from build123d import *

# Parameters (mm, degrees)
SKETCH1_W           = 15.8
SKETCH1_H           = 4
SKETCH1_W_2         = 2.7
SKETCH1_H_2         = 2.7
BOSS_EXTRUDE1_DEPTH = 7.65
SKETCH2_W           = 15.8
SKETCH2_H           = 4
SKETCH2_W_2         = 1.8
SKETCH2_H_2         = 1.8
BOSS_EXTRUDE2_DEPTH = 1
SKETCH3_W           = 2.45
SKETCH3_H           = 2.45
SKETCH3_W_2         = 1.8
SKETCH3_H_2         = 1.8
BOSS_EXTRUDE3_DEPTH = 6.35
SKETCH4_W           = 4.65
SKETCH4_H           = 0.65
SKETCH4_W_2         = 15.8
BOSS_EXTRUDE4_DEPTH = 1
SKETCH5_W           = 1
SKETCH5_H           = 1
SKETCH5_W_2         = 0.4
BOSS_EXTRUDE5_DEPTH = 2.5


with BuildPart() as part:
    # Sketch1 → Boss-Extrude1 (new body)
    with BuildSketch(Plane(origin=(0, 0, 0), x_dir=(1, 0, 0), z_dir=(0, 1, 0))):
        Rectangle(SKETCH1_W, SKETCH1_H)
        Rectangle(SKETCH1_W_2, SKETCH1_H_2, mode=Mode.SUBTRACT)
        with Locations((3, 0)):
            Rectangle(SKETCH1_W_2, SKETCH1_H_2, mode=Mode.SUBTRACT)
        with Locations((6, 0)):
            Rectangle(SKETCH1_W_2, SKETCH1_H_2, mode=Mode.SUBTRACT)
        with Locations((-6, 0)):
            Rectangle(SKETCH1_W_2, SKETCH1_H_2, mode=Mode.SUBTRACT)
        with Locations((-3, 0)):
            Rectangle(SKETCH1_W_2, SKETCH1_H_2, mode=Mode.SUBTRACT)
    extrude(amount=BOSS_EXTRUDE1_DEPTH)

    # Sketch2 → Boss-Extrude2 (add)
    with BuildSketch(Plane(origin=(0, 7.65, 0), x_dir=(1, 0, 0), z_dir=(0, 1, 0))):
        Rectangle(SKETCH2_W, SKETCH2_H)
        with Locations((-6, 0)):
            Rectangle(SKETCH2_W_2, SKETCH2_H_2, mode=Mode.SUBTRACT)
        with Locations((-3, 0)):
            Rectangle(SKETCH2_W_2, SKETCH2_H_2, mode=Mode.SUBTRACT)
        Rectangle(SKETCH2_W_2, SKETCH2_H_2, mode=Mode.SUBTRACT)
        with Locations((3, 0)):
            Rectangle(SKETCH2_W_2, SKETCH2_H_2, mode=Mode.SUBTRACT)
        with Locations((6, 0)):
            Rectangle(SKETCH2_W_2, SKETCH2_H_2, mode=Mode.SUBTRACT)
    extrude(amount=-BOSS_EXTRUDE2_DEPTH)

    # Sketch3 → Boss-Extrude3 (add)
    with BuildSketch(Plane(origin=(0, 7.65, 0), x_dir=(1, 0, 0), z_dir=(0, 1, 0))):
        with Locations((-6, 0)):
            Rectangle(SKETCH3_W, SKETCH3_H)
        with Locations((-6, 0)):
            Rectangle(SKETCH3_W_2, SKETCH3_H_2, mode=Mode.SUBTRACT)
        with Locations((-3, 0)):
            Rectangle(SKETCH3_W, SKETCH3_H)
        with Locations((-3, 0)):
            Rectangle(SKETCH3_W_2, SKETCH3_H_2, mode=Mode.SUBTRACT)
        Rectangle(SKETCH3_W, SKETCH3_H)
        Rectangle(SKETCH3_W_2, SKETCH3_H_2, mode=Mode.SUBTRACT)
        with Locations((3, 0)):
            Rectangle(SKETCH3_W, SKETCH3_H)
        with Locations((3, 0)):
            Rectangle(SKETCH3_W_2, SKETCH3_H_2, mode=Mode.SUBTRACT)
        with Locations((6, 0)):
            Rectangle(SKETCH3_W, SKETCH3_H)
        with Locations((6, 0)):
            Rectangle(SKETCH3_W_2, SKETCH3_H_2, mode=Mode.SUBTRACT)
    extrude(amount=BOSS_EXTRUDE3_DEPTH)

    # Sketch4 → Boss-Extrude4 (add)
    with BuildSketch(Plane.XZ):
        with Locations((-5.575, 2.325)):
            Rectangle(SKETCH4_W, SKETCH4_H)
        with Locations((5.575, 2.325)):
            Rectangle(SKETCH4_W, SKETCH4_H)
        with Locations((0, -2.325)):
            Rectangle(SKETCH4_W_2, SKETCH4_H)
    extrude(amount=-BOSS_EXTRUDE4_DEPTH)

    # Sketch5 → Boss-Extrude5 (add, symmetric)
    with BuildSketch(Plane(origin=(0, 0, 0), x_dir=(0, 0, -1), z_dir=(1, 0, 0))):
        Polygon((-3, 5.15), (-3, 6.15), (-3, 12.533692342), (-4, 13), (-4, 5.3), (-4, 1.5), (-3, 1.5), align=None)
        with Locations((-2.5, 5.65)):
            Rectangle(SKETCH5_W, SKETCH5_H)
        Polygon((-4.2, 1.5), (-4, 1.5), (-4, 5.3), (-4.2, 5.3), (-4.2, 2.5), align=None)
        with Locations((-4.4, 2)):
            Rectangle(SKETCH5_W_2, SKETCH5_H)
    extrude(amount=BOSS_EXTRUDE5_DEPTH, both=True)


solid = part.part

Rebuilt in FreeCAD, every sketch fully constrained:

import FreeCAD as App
import Part
import Sketcher

V = App.Vector
Q = App.Units.Quantity


def add_polygon(sketch, points):
    """Adds a closed chain of lines whose ends are joined by coincident constraints."""
    first, n = sketch.GeometryCount, len(points)
    for a, b in zip(points, points[1:] + points[:1]):
        sketch.addGeometry(Part.LineSegment(App.Vector(*a, 0), App.Vector(*b, 0)), False)
    for i in range(n):
        sketch.addConstraint(Sketcher.Constraint("Coincident", first + i, 2, first + (i + 1) % n, 1))

doc = App.newDocument("Part")
params = doc.addObject("Spreadsheet::Sheet", "Params")
for row, (alias, value) in enumerate([
    ("sketch1_height", "4 mm"),
    ("sketch1_width", "15.8 mm"),
    ("sketch1_width2", "2.7 mm"),
    ("pad1_length", "7.65 mm"),
    ("sketch2_height", "4 mm"),
    ("sketch2_width", "15.8 mm"),
    ("sketch2_width2", "1.8 mm"),
    ("pad2_length", "1 mm"),
    ("sketch3_width", "1.8 mm"),
    ("sketch3_width2", "2.45 mm"),
    ("pad3_length", "6.35 mm"),
    ("sketch4_width", "15.8 mm"),
    ("sketch4_width2", "4.65 mm"),
    ("sketch4_height", "0.65 mm"),
    ("pad4_length", "1 mm"),
    ("sketch5_width", "1 mm"),
    ("sketch5_width2", "7.7 mm"),
    ("sketch5_width3", "2.8 mm"),
    ("sketch5_height", "0.2 mm"),
    ("sketch5_height2", "0.4 mm"),
    ("pad5_length", "5 mm"),
], start=1):
    params.set(f"A{row}", alias)
    params.set(f"B{row}", "=" + value)
    params.setAlias(f"B{row}", alias)

body = doc.addObject("PartDesign::Body", "Body")

# Sketch on XZ plane
sketch1 = body.newObject("Sketcher::SketchObject", "Sketch")
sketch1.AttachmentSupport = (doc.getObject("XZ_Plane"), [""])
sketch1.MapMode = "FlatFace"
add_polygon(sketch1, [(-7.9, -2), (-7.9, 2), (7.9, 2), (7.9, -2)])  # lines 0-3
add_polygon(sketch1, [(-4.7, 1.4), (-7.3, 1.4), (-7.3, -1.4), (-4.7, -1.4)])  # lines 4-7
add_polygon(sketch1, [(-1.6, 1.4), (-4.3, 1.4), (-4.3, -1.4), (-1.6, -1.4)])  # lines 8-11
add_polygon(sketch1, [(1.4, 1.4), (-1.4, 1.4), (-1.4, -1.4), (1.4, -1.4)])  # lines 12-15
add_polygon(sketch1, [(4.3, 1.4), (1.6, 1.4), (1.6, -1.4), (4.3, -1.4)])  # lines 16-19
add_polygon(sketch1, [(7.3, 1.4), (4.7, 1.4), (4.7, -1.4), (7.3, -1.4)])  # lines 20-23
sketch1.addConstraint(Sketcher.Constraint("Vertical", 0))
sketch1.addConstraint(Sketcher.Constraint("Horizontal", 1))
sketch1.addConstraint(Sketcher.Constraint("Vertical", 2))
sketch1.addConstraint(Sketcher.Constraint("Horizontal", 3))
sketch1.addConstraint(Sketcher.Constraint("Horizontal", 4))
sketch1.addConstraint(Sketcher.Constraint("Vertical", 5))
sketch1.addConstraint(Sketcher.Constraint("Horizontal", 6))
sketch1.addConstraint(Sketcher.Constraint("Vertical", 7))
sketch1.addConstraint(Sketcher.Constraint("Horizontal", 8))
sketch1.addConstraint(Sketcher.Constraint("Vertical", 9))
sketch1.addConstraint(Sketcher.Constraint("Horizontal", 10))
sketch1.addConstraint(Sketcher.Constraint("Vertical", 11))
sketch1.addConstraint(Sketcher.Constraint("Horizontal", 12))
sketch1.addConstraint(Sketcher.Constraint("Vertical", 13))
sketch1.addConstraint(Sketcher.Constraint("Horizontal", 14))
sketch1.addConstraint(Sketcher.Constraint("Vertical", 15))
sketch1.addConstraint(Sketcher.Constraint("Horizontal", 16))
sketch1.addConstraint(Sketcher.Constraint("Vertical", 17))
sketch1.addConstraint(Sketcher.Constraint("Horizontal", 18))
sketch1.addConstraint(Sketcher.Constraint("Vertical", 19))
sketch1.addConstraint(Sketcher.Constraint("Horizontal", 20))
sketch1.addConstraint(Sketcher.Constraint("Vertical", 21))
sketch1.addConstraint(Sketcher.Constraint("Horizontal", 22))
sketch1.addConstraint(Sketcher.Constraint("Vertical", 23))
sketch1.addConstraint(Sketcher.Constraint("Symmetric", 0, 2, 2, 2, -1, 1))
sketch1.addConstraint(Sketcher.Constraint("Symmetric", 12, 2, 14, 2, -1, 1))
sketch1.addConstraint(Sketcher.Constraint("Symmetric", 10, 2, 16, 2, -1, 1))
sketch1.addConstraint(Sketcher.Constraint("Symmetric", 8, 2, 18, 2, -1, 1))
sketch1.addConstraint(Sketcher.Constraint("Symmetric", 6, 2, 20, 2, -1, 1))
sketch1.addConstraint(Sketcher.Constraint("Symmetric", 4, 2, 22, 2, -1, 1))
sketch1.addConstraint(Sketcher.Constraint("Horizontal", 7, 2, 8, 2))
sketch1.addConstraint(Sketcher.Constraint("Horizontal", 6, 2, 9, 2))
sketch1.addConstraint(Sketcher.Constraint("Horizontal", 11, 2, 12, 2))
sketch1.addConstraint(Sketcher.Constraint("Horizontal", 10, 2, 13, 2))
sketch1.addConstraint(Sketcher.Constraint("Equal", 6, 8))
sketch1.addConstraint(Sketcher.Constraint("Equal", 10, 12))
sketch1.addConstraint(Sketcher.Constraint("Equal", 22, 5))
sketch1.addConstraint(Sketcher.Constraint("DistanceY", 0, 1, 0, 2, 4.0))
sketch1.addConstraint(Sketcher.Constraint("DistanceX", 1, 1, 1, 2, 15.8))
sketch1.addConstraint(Sketcher.Constraint("DistanceX", 4, 2, 4, 1, 2.7))
sketch1.addConstraint(Sketcher.Constraint("DistanceX", 4, 2, 8, 2, 3.0))
sketch1.addConstraint(Sketcher.Constraint("DistanceX", 8, 2, 12, 2, 3.0))
sketch1.setExpression("Constraints[61]", "Params.sketch1_height")
sketch1.setExpression("Constraints[62]", "Params.sketch1_width")
sketch1.setExpression("Constraints[63]", "Params.sketch1_width2")
pad1 = body.newObject("PartDesign::Pad", "Pad")
pad1.Profile = sketch1
pad1.setExpression("Length", "Params.pad1_length")
pad1.Reversed = True

# Sketch on XZ plane
sketch2 = body.newObject("Sketcher::SketchObject", "Sketch001")
sketch2.AttachmentSupport = (doc.getObject("XZ_Plane"), [""])
sketch2.MapMode = "FlatFace"
sketch2.AttachmentOffset = App.Placement(V(0, 0, -7.65), App.Rotation())
add_polygon(sketch2, [(-7.9, -2), (-7.9, 2), (7.9, 2), (7.9, -2)])  # lines 0-3
add_polygon(sketch2, [(-5.1, 0.9), (-6.9, 0.9), (-6.9, -0.9), (-5.1, -0.9)])  # lines 4-7
add_polygon(sketch2, [(-2.1, 0.9), (-3.9, 0.9), (-3.9, -0.9), (-2.1, -0.9)])  # lines 8-11
add_polygon(sketch2, [(0.9, 0.9), (-0.9, 0.9), (-0.9, -0.9), (0.9, -0.9)])  # lines 12-15
add_polygon(sketch2, [(3.9, 0.9), (2.1, 0.9), (2.1, -0.9), (3.9, -0.9)])  # lines 16-19
add_polygon(sketch2, [(6.9, 0.9), (5.1, 0.9), (5.1, -0.9), (6.9, -0.9)])  # lines 20-23
sketch2.addConstraint(Sketcher.Constraint("Vertical", 0))
sketch2.addConstraint(Sketcher.Constraint("Horizontal", 1))
sketch2.addConstraint(Sketcher.Constraint("Vertical", 2))
sketch2.addConstraint(Sketcher.Constraint("Horizontal", 3))
sketch2.addConstraint(Sketcher.Constraint("Horizontal", 4))
sketch2.addConstraint(Sketcher.Constraint("Vertical", 5))
sketch2.addConstraint(Sketcher.Constraint("Horizontal", 6))
sketch2.addConstraint(Sketcher.Constraint("Vertical", 7))
sketch2.addConstraint(Sketcher.Constraint("Horizontal", 8))
sketch2.addConstraint(Sketcher.Constraint("Vertical", 9))
sketch2.addConstraint(Sketcher.Constraint("Horizontal", 10))
sketch2.addConstraint(Sketcher.Constraint("Vertical", 11))
sketch2.addConstraint(Sketcher.Constraint("Horizontal", 12))
sketch2.addConstraint(Sketcher.Constraint("Vertical", 13))
sketch2.addConstraint(Sketcher.Constraint("Horizontal", 14))
sketch2.addConstraint(Sketcher.Constraint("Vertical", 15))
sketch2.addConstraint(Sketcher.Constraint("Horizontal", 16))
sketch2.addConstraint(Sketcher.Constraint("Vertical", 17))
sketch2.addConstraint(Sketcher.Constraint("Horizontal", 18))
sketch2.addConstraint(Sketcher.Constraint("Vertical", 19))
sketch2.addConstraint(Sketcher.Constraint("Horizontal", 20))
sketch2.addConstraint(Sketcher.Constraint("Vertical", 21))
sketch2.addConstraint(Sketcher.Constraint("Horizontal", 22))
sketch2.addConstraint(Sketcher.Constraint("Vertical", 23))
sketch2.addConstraint(Sketcher.Constraint("Symmetric", 0, 2, 2, 2, -1, 1))
sketch2.addConstraint(Sketcher.Constraint("Symmetric", 12, 2, 14, 2, -1, 1))
sketch2.addConstraint(Sketcher.Constraint("Symmetric", 10, 2, 16, 2, -1, 1))
sketch2.addConstraint(Sketcher.Constraint("Symmetric", 8, 2, 18, 2, -1, 1))
sketch2.addConstraint(Sketcher.Constraint("Symmetric", 6, 2, 20, 2, -1, 1))
sketch2.addConstraint(Sketcher.Constraint("Symmetric", 4, 2, 22, 2, -1, 1))
sketch2.addConstraint(Sketcher.Constraint("Horizontal", 7, 2, 8, 2))
sketch2.addConstraint(Sketcher.Constraint("Horizontal", 6, 2, 9, 2))
sketch2.addConstraint(Sketcher.Constraint("Horizontal", 11, 2, 12, 2))
sketch2.addConstraint(Sketcher.Constraint("Horizontal", 10, 2, 13, 2))
sketch2.addConstraint(Sketcher.Constraint("Equal", 6, 8))
sketch2.addConstraint(Sketcher.Constraint("Equal", 10, 12))
sketch2.addConstraint(Sketcher.Constraint("Equal", 22, 5))
sketch2.addConstraint(Sketcher.Constraint("DistanceY", 0, 1, 0, 2, 4.0))
sketch2.addConstraint(Sketcher.Constraint("DistanceX", 1, 1, 1, 2, 15.8))
sketch2.addConstraint(Sketcher.Constraint("DistanceX", 4, 2, 4, 1, 1.8))
sketch2.addConstraint(Sketcher.Constraint("DistanceX", 0, 2, 4, 2, 1.0))
sketch2.addConstraint(Sketcher.Constraint("DistanceX", 4, 2, 8, 2, 3.0))
sketch2.setExpression("Constraints[61]", "Params.sketch2_height")
sketch2.setExpression("Constraints[62]", "Params.sketch2_width")
sketch2.setExpression("Constraints[63]", "Params.sketch2_width2")
pad2 = body.newObject("PartDesign::Pad", "Pad001")
pad2.Profile = sketch2
pad2.setExpression("Length", "Params.pad2_length")

# Sketch on XZ plane
sketch3 = body.newObject("Sketcher::SketchObject", "Sketch002")
sketch3.AttachmentSupport = (doc.getObject("XZ_Plane"), [""])
sketch3.MapMode = "FlatFace"
sketch3.AttachmentOffset = App.Placement(V(0, 0, -7.65), App.Rotation())
add_polygon(sketch3, [(-7.2, -1.2), (-7.2, 1.2), (-4.8, 1.2), (-4.8, -1.2)])  # lines 0-3
add_polygon(sketch3, [(-5.1, 0.9), (-6.9, 0.9), (-6.9, -0.9), (-5.1, -0.9)])  # lines 4-7
add_polygon(sketch3, [(-4.2, -1.2), (-4.2, 1.2), (-1.8, 1.2), (-1.8, -1.2)])  # lines 8-11
add_polygon(sketch3, [(-2.1, 0.9), (-3.9, 0.9), (-3.9, -0.9), (-2.1, -0.9)])  # lines 12-15
add_polygon(sketch3, [(-1.2, -1.2), (-1.2, 1.2), (1.2, 1.2), (1.2, -1.2)])  # lines 16-19
add_polygon(sketch3, [(0.9, 0.9), (-0.9, 0.9), (-0.9, -0.9), (0.9, -0.9)])  # lines 20-23
add_polygon(sketch3, [(1.8, -1.2), (1.8, 1.2), (4.2, 1.2), (4.2, -1.2)])  # lines 24-27
add_polygon(sketch3, [(3.9, 0.9), (2.1, 0.9), (2.1, -0.9), (3.9, -0.9)])  # lines 28-31
add_polygon(sketch3, [(4.8, -1.2), (4.8, 1.2), (7.2, 1.2), (7.2, -1.2)])  # lines 32-35
add_polygon(sketch3, [(6.9, 0.9), (5.1, 0.9), (5.1, -0.9), (6.9, -0.9)])  # lines 36-39
sketch3.addConstraint(Sketcher.Constraint("Vertical", 0))
sketch3.addConstraint(Sketcher.Constraint("Horizontal", 1))
sketch3.addConstraint(Sketcher.Constraint("Vertical", 2))
sketch3.addConstraint(Sketcher.Constraint("Horizontal", 3))
sketch3.addConstraint(Sketcher.Constraint("Horizontal", 4))
sketch3.addConstraint(Sketcher.Constraint("Vertical", 5))
sketch3.addConstraint(Sketcher.Constraint("Horizontal", 6))
sketch3.addConstraint(Sketcher.Constraint("Vertical", 7))
sketch3.addConstraint(Sketcher.Constraint("Vertical", 8))
sketch3.addConstraint(Sketcher.Constraint("Horizontal", 9))
sketch3.addConstraint(Sketcher.Constraint("Vertical", 10))
sketch3.addConstraint(Sketcher.Constraint("Horizontal", 11))
sketch3.addConstraint(Sketcher.Constraint("Horizontal", 12))
sketch3.addConstraint(Sketcher.Constraint("Vertical", 13))
sketch3.addConstraint(Sketcher.Constraint("Horizontal", 14))
sketch3.addConstraint(Sketcher.Constraint("Vertical", 15))
sketch3.addConstraint(Sketcher.Constraint("Vertical", 16))
sketch3.addConstraint(Sketcher.Constraint("Horizontal", 17))
sketch3.addConstraint(Sketcher.Constraint("Vertical", 18))
sketch3.addConstraint(Sketcher.Constraint("Horizontal", 19))
sketch3.addConstraint(Sketcher.Constraint("Horizontal", 20))
sketch3.addConstraint(Sketcher.Constraint("Vertical", 21))
sketch3.addConstraint(Sketcher.Constraint("Horizontal", 22))
sketch3.addConstraint(Sketcher.Constraint("Vertical", 23))
sketch3.addConstraint(Sketcher.Constraint("Vertical", 24))
sketch3.addConstraint(Sketcher.Constraint("Horizontal", 25))
sketch3.addConstraint(Sketcher.Constraint("Vertical", 26))
sketch3.addConstraint(Sketcher.Constraint("Horizontal", 27))
sketch3.addConstraint(Sketcher.Constraint("Horizontal", 28))
sketch3.addConstraint(Sketcher.Constraint("Vertical", 29))
sketch3.addConstraint(Sketcher.Constraint("Horizontal", 30))
sketch3.addConstraint(Sketcher.Constraint("Vertical", 31))
sketch3.addConstraint(Sketcher.Constraint("Vertical", 32))
sketch3.addConstraint(Sketcher.Constraint("Horizontal", 33))
sketch3.addConstraint(Sketcher.Constraint("Vertical", 34))
sketch3.addConstraint(Sketcher.Constraint("Horizontal", 35))
sketch3.addConstraint(Sketcher.Constraint("Horizontal", 36))
sketch3.addConstraint(Sketcher.Constraint("Vertical", 37))
sketch3.addConstraint(Sketcher.Constraint("Horizontal", 38))
sketch3.addConstraint(Sketcher.Constraint("Vertical", 39))
sketch3.addConstraint(Sketcher.Constraint("Symmetric", 16, 2, 18, 2, -1, 1))
sketch3.addConstraint(Sketcher.Constraint("Symmetric", 20, 2, 22, 2, -1, 1))
sketch3.addConstraint(Sketcher.Constraint("Symmetric", 10, 2, 24, 2, -1, 1))
sketch3.addConstraint(Sketcher.Constraint("Symmetric", 8, 2, 26, 2, -1, 1))
sketch3.addConstraint(Sketcher.Constraint("Symmetric", 14, 2, 28, 2, -1, 1))
sketch3.addConstraint(Sketcher.Constraint("Symmetric", 12, 2, 30, 2, -1, 1))
sketch3.addConstraint(Sketcher.Constraint("Symmetric", 2, 2, 32, 2, -1, 1))
sketch3.addConstraint(Sketcher.Constraint("Symmetric", 0, 2, 34, 2, -1, 1))
sketch3.addConstraint(Sketcher.Constraint("Symmetric", 6, 2, 36, 2, -1, 1))
sketch3.addConstraint(Sketcher.Constraint("Symmetric", 4, 2, 38, 2, -1, 1))
sketch3.addConstraint(Sketcher.Constraint("Horizontal", 1, 2, 8, 2))
sketch3.addConstraint(Sketcher.Constraint("Horizontal", 3, 2, 10, 2))
sketch3.addConstraint(Sketcher.Constraint("Horizontal", 7, 2, 12, 2))
sketch3.addConstraint(Sketcher.Constraint("Horizontal", 6, 2, 13, 2))
sketch3.addConstraint(Sketcher.Constraint("Horizontal", 9, 2, 16, 2))
sketch3.addConstraint(Sketcher.Constraint("Horizontal", 11, 2, 18, 2))
sketch3.addConstraint(Sketcher.Constraint("Horizontal", 15, 2, 20, 2))
sketch3.addConstraint(Sketcher.Constraint("Horizontal", 14, 2, 21, 2))
sketch3.addConstraint(Sketcher.Constraint("Equal", 3, 9))
sketch3.addConstraint(Sketcher.Constraint("Equal", 6, 12))
sketch3.addConstraint(Sketcher.Constraint("Equal", 11, 17))
sketch3.addConstraint(Sketcher.Constraint("Equal", 14, 20))
sketch3.addConstraint(Sketcher.Constraint("Equal", 35, 0))
sketch3.addConstraint(Sketcher.Constraint("Equal", 38, 5))
sketch3.addConstraint(Sketcher.Constraint("DistanceX", 4, 2, 4, 1, 1.8))
sketch3.addConstraint(Sketcher.Constraint("DistanceX", 1, 2, 9, 2, 3.0))
sketch3.addConstraint(Sketcher.Constraint("DistanceX", 9, 2, 17, 2, 3.0))
sketch3.addConstraint(Sketcher.Constraint("DistanceX", 1, 1, 1, 2, 2.45))
sketch3.addConstraint(Sketcher.Constraint("DistanceX", 4, 2, -1, 1, 6.9))
sketch3.addConstraint(Sketcher.Constraint("DistanceX", 12, 2, -1, 1, 3.9))
sketch3.setExpression("Constraints[104]", "Params.sketch3_width")
sketch3.setExpression("Constraints[107]", "Params.sketch3_width2")
pad3 = body.newObject("PartDesign::Pad", "Pad002")
pad3.Profile = sketch3
pad3.setExpression("Length", "Params.pad3_length")
pad3.Reversed = True

# Sketch on XZ plane
sketch4 = body.newObject("Sketcher::SketchObject", "Sketch003")
sketch4.AttachmentSupport = (doc.getObject("XZ_Plane"), [""])
sketch4.MapMode = "FlatFace"
add_polygon(sketch4, [(-7.9, 2.6), (-7.9, 2), (-3.2, 2), (-3.2, 2.6)])  # lines 0-3
add_polygon(sketch4, [(3.2, 2.6), (3.2, 2), (7.9, 2), (7.9, 2.6)])  # lines 4-7
add_polygon(sketch4, [(-7.9, -2), (-7.9, -2.6), (7.9, -2.6), (7.9, -2)])  # lines 8-11
sketch4.addConstraint(Sketcher.Constraint("Vertical", 0))
sketch4.addConstraint(Sketcher.Constraint("Horizontal", 1))
sketch4.addConstraint(Sketcher.Constraint("Vertical", 2))
sketch4.addConstraint(Sketcher.Constraint("Horizontal", 3))
sketch4.addConstraint(Sketcher.Constraint("Vertical", 4))
sketch4.addConstraint(Sketcher.Constraint("Horizontal", 5))
sketch4.addConstraint(Sketcher.Constraint("Vertical", 6))
sketch4.addConstraint(Sketcher.Constraint("Horizontal", 7))
sketch4.addConstraint(Sketcher.Constraint("Vertical", 8))
sketch4.addConstraint(Sketcher.Constraint("Horizontal", 9))
sketch4.addConstraint(Sketcher.Constraint("Vertical", 10))
sketch4.addConstraint(Sketcher.Constraint("Horizontal", 11))
sketch4.addConstraint(Sketcher.Constraint("Symmetric", 6, 2, 8, 2, -1, 1))
sketch4.addConstraint(Sketcher.Constraint("Symmetric", 3, 2, 9, 2, -1, 1))
sketch4.addConstraint(Sketcher.Constraint("Symmetric", 1, 2, 4, 2, -2))
sketch4.addConstraint(Sketcher.Constraint("Symmetric", 5, 2, 10, 2, -1))
sketch4.addConstraint(Sketcher.Constraint("DistanceX", 9, 1, 9, 2, 15.8))
sketch4.addConstraint(Sketcher.Constraint("DistanceY", -1, 1, 0, 2, 2.0))
sketch4.addConstraint(Sketcher.Constraint("DistanceX", 1, 1, 1, 2, 4.65))
sketch4.addConstraint(Sketcher.Constraint("DistanceY", 0, 2, 0, 1, 0.65))
sketch4.setExpression("Constraints[28]", "Params.sketch4_width")
sketch4.setExpression("Constraints[30]", "Params.sketch4_width2")
sketch4.setExpression("Constraints[31]", "Params.sketch4_height")
pad4 = body.newObject("PartDesign::Pad", "Pad003")
pad4.Profile = sketch4
pad4.setExpression("Length", "Params.pad4_length")
pad4.Reversed = True

# Sketch on YZ plane
sketch5 = body.newObject("Sketcher::SketchObject", "Sketch004")
sketch5.AttachmentSupport = (doc.getObject("YZ_Plane"), [""])
sketch5.MapMode = "FlatFace"
add_polygon(sketch5, [(12.53, 3), (13, 4), (5.3, 4), (5.3, 4.2), (2.5, 4.2), (2.5, 4.6), (1.5, 4.6), (1.5, 3), (5.15, 3), (5.15, 2), (6.15, 2), (6.15, 3)])  # lines 0-11
sketch5.addConstraint(Sketcher.Constraint("Horizontal", 1))
sketch5.addConstraint(Sketcher.Constraint("Vertical", 2))
sketch5.addConstraint(Sketcher.Constraint("Horizontal", 3))
sketch5.addConstraint(Sketcher.Constraint("Vertical", 4))
sketch5.addConstraint(Sketcher.Constraint("Horizontal", 5))
sketch5.addConstraint(Sketcher.Constraint("Vertical", 6))
sketch5.addConstraint(Sketcher.Constraint("Horizontal", 7))
sketch5.addConstraint(Sketcher.Constraint("Vertical", 8))
sketch5.addConstraint(Sketcher.Constraint("Horizontal", 9))
sketch5.addConstraint(Sketcher.Constraint("Vertical", 10))
sketch5.addConstraint(Sketcher.Constraint("Horizontal", 11))
sketch5.addConstraint(Sketcher.Constraint("Horizontal", 7, 2, 10, 2))
sketch5.addConstraint(Sketcher.Constraint("Equal", 5, 9))
sketch5.addConstraint(Sketcher.Constraint("Equal", 9, 8))
sketch5.addConstraint(Sketcher.Constraint("DistanceX", 5, 2, 5, 1, 1.0))
sketch5.addConstraint(Sketcher.Constraint("Angle", 0, Q("65 deg")))
sketch5.addConstraint(Sketcher.Constraint("DistanceX", 1, 2, 1, 1, 7.7))
sketch5.addConstraint(Sketcher.Constraint("DistanceX", 3, 2, 3, 1, 2.8))
sketch5.addConstraint(Sketcher.Constraint("DistanceY", 2, 1, 2, 2, 0.2))
sketch5.addConstraint(Sketcher.Constraint("DistanceY", 4, 1, 4, 2, 0.4))
sketch5.addConstraint(Sketcher.Constraint("DistanceY", 6, 2, 6, 1, 1.6))
sketch5.addConstraint(Sketcher.Constraint("DistanceX", -1, 1, 0, 2, 13.0))
sketch5.addConstraint(Sketcher.Constraint("DistanceY", -1, 1, 0, 2, 4.0))
sketch5.addConstraint(Sketcher.Constraint("DistanceX", 7, 1, 7, 2, 3.65))
sketch5.setExpression("Constraints[26]", "Params.sketch5_width")
sketch5.setExpression("Constraints[28]", "Params.sketch5_width2")
sketch5.setExpression("Constraints[29]", "Params.sketch5_width3")
sketch5.setExpression("Constraints[30]", "Params.sketch5_height")
sketch5.setExpression("Constraints[31]", "Params.sketch5_height2")
pad5 = body.newObject("PartDesign::Pad", "Pad004")
pad5.Profile = sketch5
pad5.setExpression("Length", "Params.pad5_length")
pad5.Midplane = True

doc.recompute()
